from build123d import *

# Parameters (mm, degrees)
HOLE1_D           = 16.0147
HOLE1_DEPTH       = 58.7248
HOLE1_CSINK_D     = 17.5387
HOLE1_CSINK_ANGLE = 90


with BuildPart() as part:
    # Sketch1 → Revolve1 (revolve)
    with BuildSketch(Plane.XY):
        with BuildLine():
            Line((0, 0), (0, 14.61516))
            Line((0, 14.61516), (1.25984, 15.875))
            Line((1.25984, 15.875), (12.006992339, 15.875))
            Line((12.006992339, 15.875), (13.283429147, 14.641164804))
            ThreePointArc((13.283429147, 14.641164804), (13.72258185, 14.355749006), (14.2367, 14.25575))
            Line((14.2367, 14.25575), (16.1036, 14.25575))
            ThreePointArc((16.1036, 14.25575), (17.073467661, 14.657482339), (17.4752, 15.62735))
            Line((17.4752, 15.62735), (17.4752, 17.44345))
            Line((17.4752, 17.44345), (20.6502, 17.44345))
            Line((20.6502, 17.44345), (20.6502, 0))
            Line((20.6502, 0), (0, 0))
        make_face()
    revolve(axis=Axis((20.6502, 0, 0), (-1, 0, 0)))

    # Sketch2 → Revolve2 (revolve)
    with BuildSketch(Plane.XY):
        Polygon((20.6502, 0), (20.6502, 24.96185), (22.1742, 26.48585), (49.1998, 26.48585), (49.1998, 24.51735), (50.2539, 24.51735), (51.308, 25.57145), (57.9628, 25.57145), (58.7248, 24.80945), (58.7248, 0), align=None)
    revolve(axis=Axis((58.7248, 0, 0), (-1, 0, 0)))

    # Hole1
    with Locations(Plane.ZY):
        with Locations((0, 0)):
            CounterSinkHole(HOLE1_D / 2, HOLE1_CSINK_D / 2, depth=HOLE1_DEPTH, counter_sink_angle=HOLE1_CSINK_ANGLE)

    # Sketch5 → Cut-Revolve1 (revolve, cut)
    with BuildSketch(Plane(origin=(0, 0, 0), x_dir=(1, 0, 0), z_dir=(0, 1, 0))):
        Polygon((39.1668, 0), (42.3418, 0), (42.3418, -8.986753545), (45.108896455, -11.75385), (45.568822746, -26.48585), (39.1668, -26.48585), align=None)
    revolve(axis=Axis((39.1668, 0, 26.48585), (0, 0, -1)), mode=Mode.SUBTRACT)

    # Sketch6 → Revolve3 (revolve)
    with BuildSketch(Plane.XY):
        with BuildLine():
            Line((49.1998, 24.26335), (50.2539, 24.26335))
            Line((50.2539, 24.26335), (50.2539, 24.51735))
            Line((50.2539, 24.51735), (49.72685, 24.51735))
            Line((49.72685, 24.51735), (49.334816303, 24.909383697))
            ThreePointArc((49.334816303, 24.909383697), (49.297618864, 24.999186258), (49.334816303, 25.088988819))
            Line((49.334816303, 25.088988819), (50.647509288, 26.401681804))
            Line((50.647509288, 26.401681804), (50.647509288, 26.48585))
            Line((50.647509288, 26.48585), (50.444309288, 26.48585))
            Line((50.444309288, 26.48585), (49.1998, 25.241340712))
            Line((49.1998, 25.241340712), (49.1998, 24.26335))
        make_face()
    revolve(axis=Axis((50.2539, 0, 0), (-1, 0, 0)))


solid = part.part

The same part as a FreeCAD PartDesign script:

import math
import FreeCAD as App
import Part
import Sketcher
Q = App.Units.Quantity

doc = App.newDocument("Part")
body = doc.addObject("PartDesign::Body", "Body")

# Sketch on XY plane
sketch1 = body.newObject("Sketcher::SketchObject", "Sketch")
sketch1.AttachmentSupport = (doc.getObject("XY_Plane"), [""])
sketch1.MapMode = "FlatFace"
sketch1.addGeometry(Part.LineSegment(App.Vector(0, 14.6, 0), App.Vector(0, 0, 0)), False)
sketch1.addGeometry(Part.LineSegment(App.Vector(0, 0, 0), App.Vector(20.7, 0, 0)), False)
sketch1.addGeometry(Part.LineSegment(App.Vector(20.7, 0, 0), App.Vector(20.7, 17.4, 0)), False)
sketch1.addGeometry(Part.LineSegment(App.Vector(20.7, 17.4, 0), App.Vector(17.5, 17.4, 0)), False)
sketch1.addGeometry(Part.LineSegment(App.Vector(17.5, 17.4, 0), App.Vector(17.5, 15.6, 0)), False)
sketch1.addGeometry(Part.ArcOfCircle(Part.Circle(App.Vector(16.1, 15.6, 0), App.Vector(0, 0, 1), 1.4), math.radians(-90), math.radians(0)), False)
sketch1.addGeometry(Part.LineSegment(App.Vector(16.1, 14.3, 0), App.Vector(14.2, 14.3, 0)), False)
sketch1.addGeometry(Part.ArcOfCircle(Part.Circle(App.Vector(14.2, 15.6, 0), App.Vector(0, 0, 1), 1.4), math.radians(-134), math.radians(-90)), False)
sketch1.addGeometry(Part.LineSegment(App.Vector(13.3, 14.6, 0), App.Vector(12, 15.9, 0)), False)
sketch1.addGeometry(Part.LineSegment(App.Vector(12, 15.9, 0), App.Vector(1.3, 15.9, 0)), False)
sketch1.addGeometry(Part.LineSegment(App.Vector(1.3, 15.9, 0), App.Vector(0, 14.6, 0)), False)
sketch1.addConstraint(Sketcher.Constraint("Coincident", 0, 2, 1, 1))
sketch1.addConstraint(Sketcher.Constraint("Coincident", 1, 2, 2, 1))
sketch1.addConstraint(Sketcher.Constraint("Coincident", 2, 2, 3, 1))
sketch1.addConstraint(Sketcher.Constraint("Coincident", 3, 2, 4, 1))
sketch1.addConstraint(Sketcher.Constraint("Tangent", 4, 2, 5, 2))
sketch1.addConstraint(Sketcher.Constraint("Tangent", 5, 1, 6, 1))
sketch1.addConstraint(Sketcher.Constraint("Tangent", 6, 2, 7, 2))
sketch1.addConstraint(Sketcher.Constraint("Tangent", 7, 1, 8, 1))
sketch1.addConstraint(Sketcher.Constraint("Coincident", 8, 2, 9, 1))
sketch1.addConstraint(Sketcher.Constraint("Coincident", 9, 2, 10, 1))
sketch1.addConstraint(Sketcher.Constraint("Coincident", 10, 2, 0, 1))
sketch1.addConstraint(Sketcher.Constraint("Vertical", 0))
sketch1.addConstraint(Sketcher.Constraint("Horizontal", 1))
sketch1.addConstraint(Sketcher.Constraint("Vertical", 2))
sketch1.addConstraint(Sketcher.Constraint("Horizontal", 3))
sketch1.addConstraint(Sketcher.Constraint("Vertical", 4))
sketch1.addConstraint(Sketcher.Constraint("Horizontal", 6))
sketch1.addConstraint(Sketcher.Constraint("Horizontal", 9))
sketch1.addConstraint(Sketcher.Constraint("Coincident", 0, 2, -1, 1))
sketch1.addConstraint(Sketcher.Constraint("Equal", 5, 7))
sketch1.addConstraint(Sketcher.Constraint("Angle", 10, Q("-135 deg")))
sketch1.addConstraint(Sketcher.Constraint("Radius", 5, Q("0.054 in")))
sketch1.addConstraint(Sketcher.Constraint("DistanceX", 1, 1, 1, 2, Q("0.813 in")))
sketch1.addConstraint(Sketcher.Constraint("DistanceX", 3, 2, 3, 1, Q("0.125 in")))
sketch1.addConstraint(Sketcher.Constraint("DistanceX", 6, 2, 6, 1, Q("0.0735 in")))
sketch1.addConstraint(Sketcher.Constraint("DistanceY", 0, 2, 0, 1, Q("0.5754 in")))
sketch1.addConstraint(Sketcher.Constraint("DistanceY", 4, 2, 4, 1, Q("0.0715 in")))
sketch1.addConstraint(Sketcher.Constraint("DistanceY", -1, 1, 8, 2, Q("0.625 in")))
sketch1.addConstraint(Sketcher.Constraint("DistanceY", 2, 1, 2, 2, Q("17.44345 mm")))
sketch1.addConstraint(Sketcher.Constraint("DistanceX", 9, 2, 9, 1, Q("10.747152 mm")))
revolution = body.newObject("PartDesign::Revolution", "Revolution")
revolution.Profile = sketch1
revolution.ReferenceAxis = (sketch1, ["H_Axis"])
revolution.Angle = 360

# Sketch on XY plane
sketch2 = body.newObject("Sketcher::SketchObject", "Sketch001")
sketch2.AttachmentSupport = (doc.getObject("XY_Plane"), [""])
sketch2.MapMode = "FlatFace"
sketch2.addGeometry(Part.LineSegment(App.Vector(20.7, 25, 0), App.Vector(20.7, 0, 0)), False)
sketch2.addGeometry(Part.LineSegment(App.Vector(20.7, 0, 0), App.Vector(58.7, 0, 0)), False)
sketch2.addGeometry(Part.LineSegment(App.Vector(58.7, 0, 0), App.Vector(58.7, 24.8, 0)), False)
sketch2.addGeometry(Part.LineSegment(App.Vector(58.7, 24.8, 0), App.Vector(58, 25.6, 0)), False)
sketch2.addGeometry(Part.LineSegment(App.Vector(58, 25.6, 0), App.Vector(51.3, 25.6, 0)), False)
sketch2.addGeometry(Part.LineSegment(App.Vector(51.3, 25.6, 0), App.Vector(50.3, 24.5, 0)), False)
sketch2.addGeometry(Part.LineSegment(App.Vector(50.3, 24.5, 0), App.Vector(49.2, 24.5, 0)), False)
sketch2.addGeometry(Part.LineSegment(App.Vector(49.2, 24.5, 0), App.Vector(49.2, 26.5, 0)), False)
sketch2.addGeometry(Part.LineSegment(App.Vector(49.2, 26.5, 0), App.Vector(22.2, 26.5, 0)), False)
sketch2.addGeometry(Part.LineSegment(App.Vector(22.2, 26.5, 0), App.Vector(20.7, 25, 0)), False)
sketch2.addConstraint(Sketcher.Constraint("Coincident", 0, 2, 1, 1))
sketch2.addConstraint(Sketcher.Constraint("Coincident", 1, 2, 2, 1))
sketch2.addConstraint(Sketcher.Constraint("Coincident", 2, 2, 3, 1))
sketch2.addConstraint(Sketcher.Constraint("Coincident", 3, 2, 4, 1))
sketch2.addConstraint(Sketcher.Constraint("Coincident", 4, 2, 5, 1))
sketch2.addConstraint(Sketcher.Constraint("Coincident", 5, 2, 6, 1))
sketch2.addConstraint(Sketcher.Constraint("Coincident", 6, 2, 7, 1))
sketch2.addConstraint(Sketcher.Constraint("Coincident", 7, 2, 8, 1))
sketch2.addConstraint(Sketcher.Constraint("Coincident", 8, 2, 9, 1))
sketch2.addConstraint(Sketcher.Constraint("Coincident", 9, 2, 0, 1))
sketch2.addConstraint(Sketcher.Constraint("Vertical", 0))
sketch2.addConstraint(Sketcher.Constraint("Horizontal", 1))
sketch2.addConstraint(Sketcher.Constraint("Vertical", 2))
sketch2.addConstraint(Sketcher.Constraint("Horizontal", 4))
sketch2.addConstraint(Sketcher.Constraint("Horizontal", 6))
sketch2.addConstraint(Sketcher.Constraint("Vertical", 7))
sketch2.addConstraint(Sketcher.Constraint("Horizontal", 8))
sketch2.addConstraint(Sketcher.Constraint("PointOnObject", 0, 2, -1))
sketch2.addConstraint(Sketcher.Constraint("Perpendicular", 3, 5))
sketch2.addConstraint(Sketcher.Constraint("Parallel", 5, 9))
sketch2.addConstraint(Sketcher.Constraint("Angle", 3, Q("135 deg")))
sketch2.addConstraint(Sketcher.Constraint("DistanceX", 1, 1, 1, 2, Q("1.499 in")))
sketch2.addConstraint(Sketcher.Constraint("DistanceX", 4, 2, 4, 1, Q("0.262 in")))
sketch2.addConstraint(Sketcher.Constraint("DistanceX", 8, 2, 8, 1, Q("1.064 in")))
sketch2.addConstraint(Sketcher.Constraint("DistanceX", -1, 1, 4, 2, Q("2.02 in")))
sketch2.addConstraint(Sketcher.Constraint("DistanceX", 3, 2, 2, 2, Q("0.03 in")))
sketch2.addConstraint(Sketcher.Constraint("DistanceX", 0, 2, 8, 2, Q("0.06 in")))
sketch2.addConstraint(Sketcher.Constraint("DistanceX", 6, 2, 6, 1, Q("0.0415 in")))
sketch2.addConstraint(Sketcher.Constraint("DistanceY", 7, 1, 7, 2, Q("0.0775 in")))
sketch2.addConstraint(Sketcher.Constraint("DistanceY", 0, 2, 0, 1, Q("24.96185 mm")))
revolution2 = body.newObject("PartDesign::Revolution", "Revolution001")
revolution2.Profile = sketch2
revolution2.ReferenceAxis = (sketch2, ["H_Axis"])
revolution2.Angle = 360

# Sketch on YZ plane
sketch3 = body.newObject("Sketcher::SketchObject", "Sketch002")
sketch3.AttachmentSupport = (doc.getObject("YZ_Plane"), [""])
sketch3.MapMode = "FlatFace"
sketch3.addGeometry(Part.Circle(App.Vector(0, 0, 0), App.Vector(0, 0, 1), 8), False)
sketch3.addConstraint(Sketcher.Constraint("Coincident", 0, 3, -1, 1))
sketch3.addConstraint(Sketcher.Constraint("Diameter", 0, Q("0.6305 in")))
doc.recompute()
hole = body.newObject("PartDesign::Hole", "Hole")
hole.Profile = sketch3
hole.ThreadType = "None"
hole.Diameter = Q("0.6305 in")
hole.DepthType = "Dimension"
hole.Depth = Q("2.312 in")
hole.DrillPoint = "Flat"
hole.HoleCutType = "Countersink"
hole.HoleCutDiameter = Q("0.6905 in")
hole.HoleCutCountersinkAngle = 90
hole.Reversed = True

# Sketch on XZ plane
sketch4 = body.newObject("Sketcher::SketchObject", "Sketch003")
sketch4.AttachmentSupport = (doc.getObject("XZ_Plane"), [""])
sketch4.MapMode = "FlatFace"
sketch4.addGeometry(Part.LineSegment(App.Vector(42.3, 0, 0), App.Vector(39.2, 0, 0)), False)
sketch4.addGeometry(Part.LineSegment(App.Vector(39.2, 0, 0), App.Vector(39.2, 26.5, 0)), False)
sketch4.addGeometry(Part.LineSegment(App.Vector(39.2, 26.5, 0), App.Vector(45.6, 26.5, 0)), False)
sketch4.addGeometry(Part.LineSegment(App.Vector(45.6, 26.5, 0), App.Vector(45.1, 11.8, 0)), False)
sketch4.addGeometry(Part.LineSegment(App.Vector(45.1, 11.8, 0), App.Vector(42.3, 9, 0)), False)
sketch4.addGeometry(Part.LineSegment(App.Vector(42.3, 9, 0), App.Vector(42.3, 0, 0)), False)
sketch4.addGeometry(Part.LineSegment(App.Vector(39.2, 26.5, 0), App.Vector(39.2, 0, 0)), True)  # axis
sketch4.addConstraint(Sketcher.Constraint("Coincident", 0, 2, 1, 1))
sketch4.addConstraint(Sketcher.Constraint("Coincident", 1, 2, 2, 1))
sketch4.addConstraint(Sketcher.Constraint("Coincident", 2, 2, 3, 1))
sketch4.addConstraint(Sketcher.Constraint("Coincident", 3, 2, 4, 1))
sketch4.addConstraint(Sketcher.Constraint("Coincident", 4, 2, 5, 1))
sketch4.addConstraint(Sketcher.Constraint("Coincident", 5, 2, 0, 1))
sketch4.addConstraint(Sketcher.Constraint("Horizontal", 0))
sketch4.addConstraint(Sketcher.Constraint("Vertical", 1))
sketch4.addConstraint(Sketcher.Constraint("Horizontal", 2))
sketch4.addConstraint(Sketcher.Constraint("Vertical", 5))
sketch4.addConstraint(Sketcher.Constraint("Vertical", 6))
sketch4.addConstraint(Sketcher.Constraint("Coincident", 6, 1, 1, 2))
sketch4.addConstraint(Sketcher.Constraint("PointOnObject", 0, 2, -1))
sketch4.addConstraint(Sketcher.Constraint("PointOnObject", 6, 2, -1))
sketch4.addConstraint(Sketcher.Constraint("Angle", 4, Q("-135 deg")))
sketch4.addConstraint(Sketcher.Constraint("DistanceX", 0, 2, 0, 1, Q("0.125 in")))
sketch4.addConstraint(Sketcher.Constraint("DistanceY", 3, 2, 2, 2, Q("0.58 in")))
sketch4.addConstraint(Sketcher.Constraint("DistanceX", -1, 1, 0, 2, Q("1.542 in")))
sketch4.addConstraint(Sketcher.Constraint("DistanceY", 1, 1, 1, 2, Q("26.48585 mm")))
sketch4.addConstraint(Sketcher.Constraint("DistanceX", 2, 1, 2, 2, Q("6.402023 mm")))
sketch4.addConstraint(Sketcher.Constraint("DistanceY", 5, 2, 5, 1, Q("8.986754 mm")))
groove = body.newObject("PartDesign::Groove", "Groove")
groove.Profile = sketch4
groove.ReferenceAxis = (sketch4, ["Axis0"])
groove.Angle = 360

# Sketch on XY plane
sketch5 = body.newObject("Sketcher::SketchObject", "Sketch004")
sketch5.AttachmentSupport = (doc.getObject("XY_Plane"), [""])
sketch5.MapMode = "FlatFace"
sketch5.addGeometry(Part.LineSegment(App.Vector(49.2, 24.26, 0), App.Vector(50.25, 24.26, 0)), False)
sketch5.addGeometry(Part.LineSegment(App.Vector(50.25, 24.26, 0), App.Vector(50.25, 24.52, 0)), False)
sketch5.addGeometry(Part.LineSegment(App.Vector(50.25, 24.52, 0), App.Vector(49.73, 24.52, 0)), False)
sketch5.addGeometry(Part.LineSegment(App.Vector(49.73, 24.52, 0), App.Vector(49.33, 24.91, 0)), False)
sketch5.addGeometry(Part.ArcOfCircle(Part.Circle(App.Vector(49.42, 25, 0), App.Vector(0, 0, 1), 0.13), math.radians(135), math.radians(225)), False)
sketch5.addGeometry(Part.LineSegment(App.Vector(49.33, 25.09, 0), App.Vector(50.65, 26.4, 0)), False)
sketch5.addGeometry(Part.LineSegment(App.Vector(50.65, 26.4, 0), App.Vector(50.65, 26.49, 0)), False)
sketch5.addGeometry(Part.LineSegment(App.Vector(50.65, 26.49, 0), App.Vector(50.44, 26.49, 0)), False)
sketch5.addGeometry(Part.LineSegment(App.Vector(50.44, 26.49, 0), App.Vector(49.2, 25.24, 0)), False)
sketch5.addGeometry(Part.LineSegment(App.Vector(49.2, 25.24, 0), App.Vector(49.2, 24.26, 0)), False)
sketch5.addConstraint(Sketcher.Constraint("Coincident", 0, 2, 1, 1))
sketch5.addConstraint(Sketcher.Constraint("Coincident", 1, 2, 2, 1))
sketch5.addConstraint(Sketcher.Constraint("Coincident", 2, 2, 3, 1))
sketch5.addConstraint(Sketcher.Constraint("Tangent", 3, 2, 4, 2))
sketch5.addConstraint(Sketcher.Constraint("Tangent", 4, 1, 5, 1))
sketch5.addConstraint(Sketcher.Constraint("Coincident", 5, 2, 6, 1))
sketch5.addConstraint(Sketcher.Constraint("Coincident", 6, 2, 7, 1))
sketch5.addConstraint(Sketcher.Constraint("Coincident", 7, 2, 8, 1))
sketch5.addConstraint(Sketcher.Constraint("Coincident", 8, 2, 9, 1))
sketch5.addConstraint(Sketcher.Constraint("Coincident", 9, 2, 0, 1))
sketch5.addConstraint(Sketcher.Constraint("Horizontal", 0))
sketch5.addConstraint(Sketcher.Constraint("Vertical", 1))
sketch5.addConstraint(Sketcher.Constraint("Horizontal", 2))
sketch5.addConstraint(Sketcher.Constraint("Vertical", 6))
sketch5.addConstraint(Sketcher.Constraint("Horizontal", 7))
sketch5.addConstraint(Sketcher.Constraint("Vertical", 9))
sketch5.addConstraint(Sketcher.Constraint("Perpendicular", 3, 5))
sketch5.addConstraint(Sketcher.Constraint("Parallel", 5, 8))
sketch5.addConstraint(Sketcher.Constraint("Vertical", 3, 2, 4, 1))
sketch5.addConstraint(Sketcher.Constraint("Radius", 4, Q("0.005 in")))
sketch5.addConstraint(Sketcher.Constraint("DistanceY", 1, 1, 1, 2, Q("0.01 in")))
sketch5.addConstraint(Sketcher.Constraint("DistanceX", 7, 2, 7, 1, Q("0.008 in")))
sketch5.addConstraint(Sketcher.Constraint("DistanceX", 0, 1, 0, 2, Q("0.0415 in")))
sketch5.addConstraint(Sketcher.Constraint("DistanceX", -1, 1, 8, 2, Q("1.937 in")))
sketch5.addConstraint(Sketcher.Constraint("DistanceY", 1, 2, 6, 2, Q("0.0775 in")))
sketch5.addConstraint(Sketcher.Constraint("Distance", 8, Q("1.760002 mm")))
sketch5.addConstraint(Sketcher.Constraint("DistanceX", 2, 2, 2, 1, Q("0.52705 mm")))
sketch5.addConstraint(Sketcher.Constraint("DistanceY", 6, 1, 6, 2, Q("0.084168 mm")))
sketch5.addConstraint(Sketcher.Constraint("DistanceY", -1, 1, 0, 2, Q("24.26335 mm")))
revolution3 = body.newObject("PartDesign::Revolution", "Revolution002")
revolution3.Profile = sketch5
revolution3.ReferenceAxis = (sketch5, ["H_Axis"])
revolution3.Angle = 360

doc.recompute()
